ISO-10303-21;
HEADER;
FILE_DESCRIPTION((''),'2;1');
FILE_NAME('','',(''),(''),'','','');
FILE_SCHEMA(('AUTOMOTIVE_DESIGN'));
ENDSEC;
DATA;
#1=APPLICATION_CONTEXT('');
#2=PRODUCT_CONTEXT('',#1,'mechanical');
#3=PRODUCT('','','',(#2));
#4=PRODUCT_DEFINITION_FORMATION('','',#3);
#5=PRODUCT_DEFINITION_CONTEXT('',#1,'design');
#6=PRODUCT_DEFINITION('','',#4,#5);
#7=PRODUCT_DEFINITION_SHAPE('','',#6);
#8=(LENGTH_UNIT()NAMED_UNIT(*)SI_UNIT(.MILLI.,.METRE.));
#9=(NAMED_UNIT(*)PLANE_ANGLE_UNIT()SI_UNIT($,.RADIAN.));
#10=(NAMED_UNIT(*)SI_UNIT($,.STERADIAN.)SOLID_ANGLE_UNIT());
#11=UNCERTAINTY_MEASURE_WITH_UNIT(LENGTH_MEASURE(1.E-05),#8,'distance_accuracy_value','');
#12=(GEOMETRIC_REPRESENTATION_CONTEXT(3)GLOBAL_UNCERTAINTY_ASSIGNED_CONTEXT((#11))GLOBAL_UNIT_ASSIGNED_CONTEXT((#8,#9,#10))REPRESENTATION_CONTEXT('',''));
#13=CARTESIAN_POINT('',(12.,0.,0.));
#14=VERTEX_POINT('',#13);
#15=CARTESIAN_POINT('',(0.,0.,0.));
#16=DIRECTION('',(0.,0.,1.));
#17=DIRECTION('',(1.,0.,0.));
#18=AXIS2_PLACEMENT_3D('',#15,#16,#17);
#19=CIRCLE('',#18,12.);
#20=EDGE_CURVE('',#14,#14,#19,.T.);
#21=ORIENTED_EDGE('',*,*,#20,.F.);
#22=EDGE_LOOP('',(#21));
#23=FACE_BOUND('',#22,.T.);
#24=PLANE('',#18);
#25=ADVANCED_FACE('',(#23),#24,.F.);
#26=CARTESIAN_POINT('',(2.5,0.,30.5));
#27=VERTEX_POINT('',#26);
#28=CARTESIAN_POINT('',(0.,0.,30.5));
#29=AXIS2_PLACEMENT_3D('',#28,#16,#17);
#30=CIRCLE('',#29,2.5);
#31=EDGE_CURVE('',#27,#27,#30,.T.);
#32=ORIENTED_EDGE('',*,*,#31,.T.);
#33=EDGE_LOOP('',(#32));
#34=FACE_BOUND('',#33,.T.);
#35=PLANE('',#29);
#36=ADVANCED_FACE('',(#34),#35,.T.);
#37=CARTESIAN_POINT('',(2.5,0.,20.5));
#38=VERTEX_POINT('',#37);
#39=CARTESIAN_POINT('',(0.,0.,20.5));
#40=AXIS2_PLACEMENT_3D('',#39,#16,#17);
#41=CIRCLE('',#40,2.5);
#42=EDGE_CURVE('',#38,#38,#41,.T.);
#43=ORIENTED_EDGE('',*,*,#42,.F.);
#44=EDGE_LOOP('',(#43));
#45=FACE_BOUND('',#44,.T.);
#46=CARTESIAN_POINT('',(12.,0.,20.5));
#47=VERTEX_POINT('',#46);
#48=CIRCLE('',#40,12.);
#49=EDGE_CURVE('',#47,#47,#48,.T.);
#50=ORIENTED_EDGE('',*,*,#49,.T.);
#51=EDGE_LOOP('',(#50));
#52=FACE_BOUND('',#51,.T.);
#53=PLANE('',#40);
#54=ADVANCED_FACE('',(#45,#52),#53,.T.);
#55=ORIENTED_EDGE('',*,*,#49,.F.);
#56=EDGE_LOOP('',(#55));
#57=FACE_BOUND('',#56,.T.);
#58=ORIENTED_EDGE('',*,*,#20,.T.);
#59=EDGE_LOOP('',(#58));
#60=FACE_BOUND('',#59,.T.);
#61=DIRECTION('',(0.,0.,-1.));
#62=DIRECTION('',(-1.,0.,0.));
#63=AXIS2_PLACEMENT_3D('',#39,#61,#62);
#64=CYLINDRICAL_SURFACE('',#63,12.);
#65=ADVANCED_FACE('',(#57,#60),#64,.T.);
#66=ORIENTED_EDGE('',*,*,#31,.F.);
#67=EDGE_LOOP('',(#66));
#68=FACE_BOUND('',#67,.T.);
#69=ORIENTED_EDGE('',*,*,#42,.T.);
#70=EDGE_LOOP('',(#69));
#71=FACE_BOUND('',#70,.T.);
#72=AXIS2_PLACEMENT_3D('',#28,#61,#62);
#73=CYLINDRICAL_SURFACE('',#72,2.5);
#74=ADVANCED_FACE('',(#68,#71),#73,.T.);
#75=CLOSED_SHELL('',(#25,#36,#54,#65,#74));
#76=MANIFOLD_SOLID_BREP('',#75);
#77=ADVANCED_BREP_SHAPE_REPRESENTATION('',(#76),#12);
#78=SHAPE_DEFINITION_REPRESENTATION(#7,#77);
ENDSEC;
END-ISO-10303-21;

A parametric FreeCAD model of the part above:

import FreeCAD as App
import Part
import Sketcher

V = App.Vector
Q = App.Units.Quantity

doc = App.newDocument("Part")
params = doc.addObject("Spreadsheet::Sheet", "Params")
for row, (alias, value) in enumerate([
    ("sketch1_diameter", "24 mm"),
    ("pad1_length", "20.5 mm"),
    ("sketch2_diameter", "5 mm"),
    ("pad2_length", "10 mm"),
], start=1):
    params.set(f"A{row}", alias)
    params.set(f"B{row}", "=" + value)
    params.setAlias(f"B{row}", alias)

body = doc.addObject("PartDesign::Body", "Body")

# Sketch on XY plane
sketch1 = body.newObject("Sketcher::SketchObject", "Sketch")
sketch1.AttachmentSupport = (doc.getObject("XY_Plane"), [""])
sketch1.MapMode = "FlatFace"
sketch1.addGeometry(Part.Circle(V(0, 0, 0), V(0, 0, 1), 12), False)
sketch1.addConstraint([
    Sketcher.Constraint("Coincident", 0, 3, -1, 1),
    Sketcher.Constraint("Diameter", 0, Q("24 mm")),
])
sketch1.setExpression("Constraints[1]", "Params.sketch1_diameter")
pad1 = body.newObject("PartDesign::Pad", "Pad")
pad1.Profile = sketch1
pad1.setExpression("Length", "Params.pad1_length")

# Sketch on XY plane
sketch2 = body.newObject("Sketcher::SketchObject", "Sketch001")
sketch2.AttachmentSupport = (doc.getObject("XY_Plane"), [""])
sketch2.MapMode = "FlatFace"
sketch2.AttachmentOffset = App.Placement(V(0, 0, 20.5), App.Rotation())
sketch2.addGeometry(Part.Circle(V(0, 0, 0), V(0, 0, 1), 2.5), False)
sketch2.addConstraint([
    Sketcher.Constraint("Coincident", 0, 3, -1, 1),
    Sketcher.Constraint("Diameter", 0, Q("5 mm")),
])
sketch2.setExpression("Constraints[1]", "Params.sketch2_diameter")
pad2 = body.newObject("PartDesign::Pad", "Pad001")
pad2.Profile = sketch2
pad2.setExpression("Length", "Params.pad2_length")

doc.recompute()
